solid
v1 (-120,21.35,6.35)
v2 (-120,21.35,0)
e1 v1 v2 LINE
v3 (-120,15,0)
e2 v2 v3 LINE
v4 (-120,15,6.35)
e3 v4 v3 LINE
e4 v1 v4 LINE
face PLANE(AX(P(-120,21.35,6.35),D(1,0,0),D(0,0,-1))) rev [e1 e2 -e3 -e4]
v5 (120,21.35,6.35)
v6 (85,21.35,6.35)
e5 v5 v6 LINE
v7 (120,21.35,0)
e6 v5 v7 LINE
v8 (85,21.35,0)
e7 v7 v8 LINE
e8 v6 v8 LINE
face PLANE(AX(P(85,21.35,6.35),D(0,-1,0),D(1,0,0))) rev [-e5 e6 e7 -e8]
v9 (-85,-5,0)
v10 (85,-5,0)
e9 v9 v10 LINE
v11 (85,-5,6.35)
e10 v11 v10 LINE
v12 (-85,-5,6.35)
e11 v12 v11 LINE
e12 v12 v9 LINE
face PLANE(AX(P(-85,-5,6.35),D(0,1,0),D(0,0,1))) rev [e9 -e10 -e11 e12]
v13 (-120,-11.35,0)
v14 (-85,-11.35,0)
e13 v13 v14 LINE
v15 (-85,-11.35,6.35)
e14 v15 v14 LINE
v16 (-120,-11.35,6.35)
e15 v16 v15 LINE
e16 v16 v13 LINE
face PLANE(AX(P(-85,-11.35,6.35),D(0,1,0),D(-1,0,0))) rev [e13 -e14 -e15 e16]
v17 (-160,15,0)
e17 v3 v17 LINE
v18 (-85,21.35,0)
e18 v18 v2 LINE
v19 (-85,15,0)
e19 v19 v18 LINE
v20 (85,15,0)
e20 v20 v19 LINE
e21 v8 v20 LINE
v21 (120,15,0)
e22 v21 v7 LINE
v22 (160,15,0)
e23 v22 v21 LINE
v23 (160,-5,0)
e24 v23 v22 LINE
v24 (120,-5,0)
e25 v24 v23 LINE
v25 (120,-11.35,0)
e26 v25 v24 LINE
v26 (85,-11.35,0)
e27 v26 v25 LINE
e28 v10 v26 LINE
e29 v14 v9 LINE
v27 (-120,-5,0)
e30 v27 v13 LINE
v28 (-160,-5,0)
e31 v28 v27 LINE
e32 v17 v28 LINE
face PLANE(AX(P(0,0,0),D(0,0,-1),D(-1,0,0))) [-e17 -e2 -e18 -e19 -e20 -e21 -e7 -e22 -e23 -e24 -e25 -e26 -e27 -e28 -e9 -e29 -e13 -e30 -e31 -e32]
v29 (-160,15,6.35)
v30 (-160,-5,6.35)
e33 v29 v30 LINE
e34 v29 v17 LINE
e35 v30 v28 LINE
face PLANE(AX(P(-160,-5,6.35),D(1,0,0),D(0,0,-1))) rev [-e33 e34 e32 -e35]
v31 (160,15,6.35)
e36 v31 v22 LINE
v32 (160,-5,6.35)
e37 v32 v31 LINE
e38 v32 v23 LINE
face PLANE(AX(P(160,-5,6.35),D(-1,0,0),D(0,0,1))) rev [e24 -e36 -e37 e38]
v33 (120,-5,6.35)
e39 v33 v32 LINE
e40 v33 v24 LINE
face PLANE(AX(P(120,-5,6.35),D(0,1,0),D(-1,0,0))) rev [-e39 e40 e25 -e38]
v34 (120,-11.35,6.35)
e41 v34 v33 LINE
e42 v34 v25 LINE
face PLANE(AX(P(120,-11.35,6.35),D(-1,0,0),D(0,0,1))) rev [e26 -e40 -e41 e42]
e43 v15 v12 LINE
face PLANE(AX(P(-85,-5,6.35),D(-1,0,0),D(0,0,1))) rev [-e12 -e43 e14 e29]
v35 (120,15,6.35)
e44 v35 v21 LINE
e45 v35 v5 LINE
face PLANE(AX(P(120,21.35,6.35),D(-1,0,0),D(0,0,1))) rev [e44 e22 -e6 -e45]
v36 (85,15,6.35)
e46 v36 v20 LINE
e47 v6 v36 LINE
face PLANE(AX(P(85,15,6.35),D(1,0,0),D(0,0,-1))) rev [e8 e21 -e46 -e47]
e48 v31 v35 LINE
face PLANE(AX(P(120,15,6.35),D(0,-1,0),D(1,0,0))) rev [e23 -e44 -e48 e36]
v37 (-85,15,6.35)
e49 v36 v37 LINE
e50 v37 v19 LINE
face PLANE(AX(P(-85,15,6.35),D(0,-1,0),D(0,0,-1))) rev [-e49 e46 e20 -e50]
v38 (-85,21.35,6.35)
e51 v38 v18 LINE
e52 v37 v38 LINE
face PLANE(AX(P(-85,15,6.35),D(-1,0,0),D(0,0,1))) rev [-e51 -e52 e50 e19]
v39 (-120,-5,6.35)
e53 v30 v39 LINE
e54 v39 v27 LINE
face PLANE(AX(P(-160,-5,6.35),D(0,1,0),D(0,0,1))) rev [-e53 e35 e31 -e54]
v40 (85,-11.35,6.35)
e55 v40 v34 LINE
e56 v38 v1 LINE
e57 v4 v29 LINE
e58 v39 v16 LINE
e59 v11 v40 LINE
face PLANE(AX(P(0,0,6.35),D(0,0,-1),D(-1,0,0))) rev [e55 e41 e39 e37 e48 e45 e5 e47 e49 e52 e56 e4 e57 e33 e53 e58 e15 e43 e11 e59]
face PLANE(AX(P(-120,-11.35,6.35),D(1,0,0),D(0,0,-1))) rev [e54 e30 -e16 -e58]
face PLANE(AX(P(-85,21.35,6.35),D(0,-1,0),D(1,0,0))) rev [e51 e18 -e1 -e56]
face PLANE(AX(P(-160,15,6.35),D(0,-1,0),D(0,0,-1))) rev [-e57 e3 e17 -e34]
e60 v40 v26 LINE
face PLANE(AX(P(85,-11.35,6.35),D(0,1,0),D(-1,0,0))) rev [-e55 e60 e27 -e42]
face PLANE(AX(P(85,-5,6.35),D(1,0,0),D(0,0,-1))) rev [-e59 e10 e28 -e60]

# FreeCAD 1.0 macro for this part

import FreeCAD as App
import Part
import Sketcher
from FreeCAD import Vector
Q = App.Units.Quantity

doc = App.newDocument("Part")
params = doc.addObject("Spreadsheet::Sheet", "Params")
for row, (alias, value) in enumerate([
    ("sketch1_width", "40 mm"),
    ("sketch1_width2", "35 mm"),
    ("sketch1_width3", "170 mm"),
    ("sketch1_height", "20 mm"),
    ("sketch1_height2", "6.35 mm"),
    ("pad1_length", "6.35 mm"),
], start=1):
    params.set(f"A{row}", alias)
    params.set(f"B{row}", "=" + value)
    params.setAlias(f"B{row}", alias)

body = doc.addObject("PartDesign::Body", "Body")

sketch1 = body.newObject("Sketcher::SketchObject", "Sketch")
sketch1.AttachmentSupport = (doc.getObject("XY_Plane"), [""])
sketch1.MapMode = "FlatFace"
sketch1.addGeometry(Part.LineSegment(Vector(-160, -5, 0), Vector(-120, -5, 0)), False)
sketch1.addGeometry(Part.LineSegment(Vector(-120, -5, 0), Vector(-120, -11, 0)), False)
sketch1.addGeometry(Part.LineSegment(Vector(-120, -11, 0), Vector(-85, -11, 0)), False)
sketch1.addGeometry(Part.LineSegment(Vector(-85, -11, 0), Vector(-85, -5, 0)), False)
sketch1.addGeometry(Part.LineSegment(Vector(-85, -5, 0), Vector(85, -5, 0)), False)
sketch1.addGeometry(Part.LineSegment(Vector(85, -5, 0), Vector(85, -11, 0)), False)
sketch1.addGeometry(Part.LineSegment(Vector(85, -11, 0), Vector(120, -11, 0)), False)
sketch1.addGeometry(Part.LineSegment(Vector(120, -11, 0), Vector(120, -5, 0)), False)
sketch1.addGeometry(Part.LineSegment(Vector(120, -5, 0), Vector(160, -5, 0)), False)
sketch1.addGeometry(Part.LineSegment(Vector(160, -5, 0), Vector(160, 15, 0)), False)
sketch1.addGeometry(Part.LineSegment(Vector(160, 15, 0), Vector(120, 15, 0)), False)
sketch1.addGeometry(Part.LineSegment(Vector(120, 15, 0), Vector(120, 21, 0)), False)
sketch1.addGeometry(Part.LineSegment(Vector(120, 21, 0), Vector(85, 21, 0)), False)
sketch1.addGeometry(Part.LineSegment(Vector(85, 21, 0), Vector(85, 15, 0)), False)
sketch1.addGeometry(Part.LineSegment(Vector(85, 15, 0), Vector(-85, 15, 0)), False)
sketch1.addGeometry(Part.LineSegment(Vector(-85, 15, 0), Vector(-85, 21, 0)), False)
sketch1.addGeometry(Part.LineSegment(Vector(-85, 21, 0), Vector(-120, 21, 0)), False)
sketch1.addGeometry(Part.LineSegment(Vector(-120, 21, 0), Vector(-120, 15, 0)), False)
sketch1.addGeometry(Part.LineSegment(Vector(-120, 15, 0), Vector(-160, 15, 0)), False)
sketch1.addGeometry(Part.LineSegment(Vector(-160, 15, 0), Vector(-160, -5, 0)), False)
sketch1.addConstraint(Sketcher.Constraint("Coincident", 0, 2, 1, 1))
sketch1.addConstraint(Sketcher.Constraint("Coincident", 1, 2, 2, 1))
sketch1.addConstraint(Sketcher.Constraint("Coincident", 2, 2, 3, 1))
sketch1.addConstraint(Sketcher.Constraint("Coincident", 3, 2, 4, 1))
sketch1.addConstraint(Sketcher.Constraint("Coincident", 4, 2, 5, 1))
sketch1.addConstraint(Sketcher.Constraint("Coincident", 5, 2, 6, 1))
sketch1.addConstraint(Sketcher.Constraint("Coincident", 6, 2, 7, 1))
sketch1.addConstraint(Sketcher.Constraint("Coincident", 7, 2, 8, 1))
sketch1.addConstraint(Sketcher.Constraint("Coincident", 8, 2, 9, 1))
sketch1.addConstraint(Sketcher.Constraint("Coincident", 9, 2, 10, 1))
sketch1.addConstraint(Sketcher.Constraint("Coincident", 10, 2, 11, 1))
sketch1.addConstraint(Sketcher.Constraint("Coincident", 11, 2, 12, 1))
sketch1.addConstraint(Sketcher.Constraint("Coincident", 12, 2, 13, 1))
sketch1.addConstraint(Sketcher.Constraint("Coincident", 13, 2, 14, 1))
sketch1.addConstraint(Sketcher.Constraint("Coincident", 14, 2, 15, 1))
sketch1.addConstraint(Sketcher.Constraint("Coincident", 15, 2, 16, 1))
sketch1.addConstraint(Sketcher.Constraint("Coincident", 16, 2, 17, 1))
sketch1.addConstraint(Sketcher.Constraint("Coincident", 17, 2, 18, 1))
sketch1.addConstraint(Sketcher.Constraint("Coincident", 18, 2, 19, 1))
sketch1.addConstraint(Sketcher.Constraint("Coincident", 19, 2, 0, 1))
sketch1.addConstraint(Sketcher.Constraint("Horizontal", 0))
sketch1.addConstraint(Sketcher.Constraint("Vertical", 1))
sketch1.addConstraint(Sketcher.Constraint("Horizontal", 2))
sketch1.addConstraint(Sketcher.Constraint("Vertical", 3))
sketch1.addConstraint(Sketcher.Constraint("Horizontal", 4))
sketch1.addConstraint(Sketcher.Constraint("Vertical", 5))
sketch1.addConstraint(Sketcher.Constraint("Horizontal", 6))
sketch1.addConstraint(Sketcher.Constraint("Vertical", 7))
sketch1.addConstraint(Sketcher.Constraint("Horizontal", 8))
sketch1.addConstraint(Sketcher.Constraint("Vertical", 9))
sketch1.addConstraint(Sketcher.Constraint("Horizontal", 10))
sketch1.addConstraint(Sketcher.Constraint("Vertical", 11))
sketch1.addConstraint(Sketcher.Constraint("Horizontal", 12))
sketch1.addConstraint(Sketcher.Constraint("Vertical", 13))
sketch1.addConstraint(Sketcher.Constraint("Horizontal", 14))
sketch1.addConstraint(Sketcher.Constraint("Vertical", 15))
sketch1.addConstraint(Sketcher.Constraint("Horizontal", 16))
sketch1.addConstraint(Sketcher.Constraint("Vertical", 17))
sketch1.addConstraint(Sketcher.Constraint("Horizontal", 18))
sketch1.addConstraint(Sketcher.Constraint("Vertical", 19))
sketch1.addConstraint(Sketcher.Constraint("Symmetric", 2, 2, 5, 2, -2))
sketch1.addConstraint(Sketcher.Constraint("Symmetric", 0, 2, 7, 2, -2))
sketch1.addConstraint(Sketcher.Constraint("Symmetric", 12, 2, 15, 2, -2))
sketch1.addConstraint(Sketcher.Constraint("Symmetric", 10, 2, 17, 2, -2))
sketch1.addConstraint(Sketcher.Constraint("Horizontal", 0, 2, 3, 2))
sketch1.addConstraint(Sketcher.Constraint("Horizontal", 10, 2, 13, 2))
sketch1.addConstraint(Sketcher.Constraint("Vertical", 7, 2, 10, 2))
sketch1.addConstraint(Sketcher.Constraint("Vertical", 5, 2, 12, 2))
sketch1.addConstraint(Sketcher.Constraint("Equal", 0, 8))
sketch1.addConstraint(Sketcher.Constraint("Equal", 7, 11))
sketch1.addConstraint(Sketcher.Constraint("DistanceX", 0, 1, 0, 2, Q("40 mm")))
sketch1.addConstraint(Sketcher.Constraint("DistanceX", 2, 1, 2, 2, Q("35 mm")))
sketch1.addConstraint(Sketcher.Constraint("DistanceX", 4, 1, 4, 2, Q("170 mm")))
sketch1.addConstraint(Sketcher.Constraint("DistanceY", 9, 1, 9, 2, Q("20 mm")))
sketch1.addConstraint(Sketcher.Constraint("DistanceY", 0, 2, -1, 1, Q("5 mm")))
sketch1.addConstraint(Sketcher.Constraint("DistanceY", 1, 2, 1, 1, Q("6.35 mm")))
sketch1.setExpression("Constraints[50]", "Params.sketch1_width")
sketch1.setExpression("Constraints[51]", "Params.sketch1_width2")
sketch1.setExpression("Constraints[52]", "Params.sketch1_width3")
sketch1.setExpression("Constraints[53]", "Params.sketch1_height")
sketch1.setExpression("Constraints[55]", "Params.sketch1_height2")
pad1 = body.newObject("PartDesign::Pad", "Pad")
pad1.Profile = sketch1
pad1.setExpression("Length", "Params.pad1_length")

doc.recompute()
